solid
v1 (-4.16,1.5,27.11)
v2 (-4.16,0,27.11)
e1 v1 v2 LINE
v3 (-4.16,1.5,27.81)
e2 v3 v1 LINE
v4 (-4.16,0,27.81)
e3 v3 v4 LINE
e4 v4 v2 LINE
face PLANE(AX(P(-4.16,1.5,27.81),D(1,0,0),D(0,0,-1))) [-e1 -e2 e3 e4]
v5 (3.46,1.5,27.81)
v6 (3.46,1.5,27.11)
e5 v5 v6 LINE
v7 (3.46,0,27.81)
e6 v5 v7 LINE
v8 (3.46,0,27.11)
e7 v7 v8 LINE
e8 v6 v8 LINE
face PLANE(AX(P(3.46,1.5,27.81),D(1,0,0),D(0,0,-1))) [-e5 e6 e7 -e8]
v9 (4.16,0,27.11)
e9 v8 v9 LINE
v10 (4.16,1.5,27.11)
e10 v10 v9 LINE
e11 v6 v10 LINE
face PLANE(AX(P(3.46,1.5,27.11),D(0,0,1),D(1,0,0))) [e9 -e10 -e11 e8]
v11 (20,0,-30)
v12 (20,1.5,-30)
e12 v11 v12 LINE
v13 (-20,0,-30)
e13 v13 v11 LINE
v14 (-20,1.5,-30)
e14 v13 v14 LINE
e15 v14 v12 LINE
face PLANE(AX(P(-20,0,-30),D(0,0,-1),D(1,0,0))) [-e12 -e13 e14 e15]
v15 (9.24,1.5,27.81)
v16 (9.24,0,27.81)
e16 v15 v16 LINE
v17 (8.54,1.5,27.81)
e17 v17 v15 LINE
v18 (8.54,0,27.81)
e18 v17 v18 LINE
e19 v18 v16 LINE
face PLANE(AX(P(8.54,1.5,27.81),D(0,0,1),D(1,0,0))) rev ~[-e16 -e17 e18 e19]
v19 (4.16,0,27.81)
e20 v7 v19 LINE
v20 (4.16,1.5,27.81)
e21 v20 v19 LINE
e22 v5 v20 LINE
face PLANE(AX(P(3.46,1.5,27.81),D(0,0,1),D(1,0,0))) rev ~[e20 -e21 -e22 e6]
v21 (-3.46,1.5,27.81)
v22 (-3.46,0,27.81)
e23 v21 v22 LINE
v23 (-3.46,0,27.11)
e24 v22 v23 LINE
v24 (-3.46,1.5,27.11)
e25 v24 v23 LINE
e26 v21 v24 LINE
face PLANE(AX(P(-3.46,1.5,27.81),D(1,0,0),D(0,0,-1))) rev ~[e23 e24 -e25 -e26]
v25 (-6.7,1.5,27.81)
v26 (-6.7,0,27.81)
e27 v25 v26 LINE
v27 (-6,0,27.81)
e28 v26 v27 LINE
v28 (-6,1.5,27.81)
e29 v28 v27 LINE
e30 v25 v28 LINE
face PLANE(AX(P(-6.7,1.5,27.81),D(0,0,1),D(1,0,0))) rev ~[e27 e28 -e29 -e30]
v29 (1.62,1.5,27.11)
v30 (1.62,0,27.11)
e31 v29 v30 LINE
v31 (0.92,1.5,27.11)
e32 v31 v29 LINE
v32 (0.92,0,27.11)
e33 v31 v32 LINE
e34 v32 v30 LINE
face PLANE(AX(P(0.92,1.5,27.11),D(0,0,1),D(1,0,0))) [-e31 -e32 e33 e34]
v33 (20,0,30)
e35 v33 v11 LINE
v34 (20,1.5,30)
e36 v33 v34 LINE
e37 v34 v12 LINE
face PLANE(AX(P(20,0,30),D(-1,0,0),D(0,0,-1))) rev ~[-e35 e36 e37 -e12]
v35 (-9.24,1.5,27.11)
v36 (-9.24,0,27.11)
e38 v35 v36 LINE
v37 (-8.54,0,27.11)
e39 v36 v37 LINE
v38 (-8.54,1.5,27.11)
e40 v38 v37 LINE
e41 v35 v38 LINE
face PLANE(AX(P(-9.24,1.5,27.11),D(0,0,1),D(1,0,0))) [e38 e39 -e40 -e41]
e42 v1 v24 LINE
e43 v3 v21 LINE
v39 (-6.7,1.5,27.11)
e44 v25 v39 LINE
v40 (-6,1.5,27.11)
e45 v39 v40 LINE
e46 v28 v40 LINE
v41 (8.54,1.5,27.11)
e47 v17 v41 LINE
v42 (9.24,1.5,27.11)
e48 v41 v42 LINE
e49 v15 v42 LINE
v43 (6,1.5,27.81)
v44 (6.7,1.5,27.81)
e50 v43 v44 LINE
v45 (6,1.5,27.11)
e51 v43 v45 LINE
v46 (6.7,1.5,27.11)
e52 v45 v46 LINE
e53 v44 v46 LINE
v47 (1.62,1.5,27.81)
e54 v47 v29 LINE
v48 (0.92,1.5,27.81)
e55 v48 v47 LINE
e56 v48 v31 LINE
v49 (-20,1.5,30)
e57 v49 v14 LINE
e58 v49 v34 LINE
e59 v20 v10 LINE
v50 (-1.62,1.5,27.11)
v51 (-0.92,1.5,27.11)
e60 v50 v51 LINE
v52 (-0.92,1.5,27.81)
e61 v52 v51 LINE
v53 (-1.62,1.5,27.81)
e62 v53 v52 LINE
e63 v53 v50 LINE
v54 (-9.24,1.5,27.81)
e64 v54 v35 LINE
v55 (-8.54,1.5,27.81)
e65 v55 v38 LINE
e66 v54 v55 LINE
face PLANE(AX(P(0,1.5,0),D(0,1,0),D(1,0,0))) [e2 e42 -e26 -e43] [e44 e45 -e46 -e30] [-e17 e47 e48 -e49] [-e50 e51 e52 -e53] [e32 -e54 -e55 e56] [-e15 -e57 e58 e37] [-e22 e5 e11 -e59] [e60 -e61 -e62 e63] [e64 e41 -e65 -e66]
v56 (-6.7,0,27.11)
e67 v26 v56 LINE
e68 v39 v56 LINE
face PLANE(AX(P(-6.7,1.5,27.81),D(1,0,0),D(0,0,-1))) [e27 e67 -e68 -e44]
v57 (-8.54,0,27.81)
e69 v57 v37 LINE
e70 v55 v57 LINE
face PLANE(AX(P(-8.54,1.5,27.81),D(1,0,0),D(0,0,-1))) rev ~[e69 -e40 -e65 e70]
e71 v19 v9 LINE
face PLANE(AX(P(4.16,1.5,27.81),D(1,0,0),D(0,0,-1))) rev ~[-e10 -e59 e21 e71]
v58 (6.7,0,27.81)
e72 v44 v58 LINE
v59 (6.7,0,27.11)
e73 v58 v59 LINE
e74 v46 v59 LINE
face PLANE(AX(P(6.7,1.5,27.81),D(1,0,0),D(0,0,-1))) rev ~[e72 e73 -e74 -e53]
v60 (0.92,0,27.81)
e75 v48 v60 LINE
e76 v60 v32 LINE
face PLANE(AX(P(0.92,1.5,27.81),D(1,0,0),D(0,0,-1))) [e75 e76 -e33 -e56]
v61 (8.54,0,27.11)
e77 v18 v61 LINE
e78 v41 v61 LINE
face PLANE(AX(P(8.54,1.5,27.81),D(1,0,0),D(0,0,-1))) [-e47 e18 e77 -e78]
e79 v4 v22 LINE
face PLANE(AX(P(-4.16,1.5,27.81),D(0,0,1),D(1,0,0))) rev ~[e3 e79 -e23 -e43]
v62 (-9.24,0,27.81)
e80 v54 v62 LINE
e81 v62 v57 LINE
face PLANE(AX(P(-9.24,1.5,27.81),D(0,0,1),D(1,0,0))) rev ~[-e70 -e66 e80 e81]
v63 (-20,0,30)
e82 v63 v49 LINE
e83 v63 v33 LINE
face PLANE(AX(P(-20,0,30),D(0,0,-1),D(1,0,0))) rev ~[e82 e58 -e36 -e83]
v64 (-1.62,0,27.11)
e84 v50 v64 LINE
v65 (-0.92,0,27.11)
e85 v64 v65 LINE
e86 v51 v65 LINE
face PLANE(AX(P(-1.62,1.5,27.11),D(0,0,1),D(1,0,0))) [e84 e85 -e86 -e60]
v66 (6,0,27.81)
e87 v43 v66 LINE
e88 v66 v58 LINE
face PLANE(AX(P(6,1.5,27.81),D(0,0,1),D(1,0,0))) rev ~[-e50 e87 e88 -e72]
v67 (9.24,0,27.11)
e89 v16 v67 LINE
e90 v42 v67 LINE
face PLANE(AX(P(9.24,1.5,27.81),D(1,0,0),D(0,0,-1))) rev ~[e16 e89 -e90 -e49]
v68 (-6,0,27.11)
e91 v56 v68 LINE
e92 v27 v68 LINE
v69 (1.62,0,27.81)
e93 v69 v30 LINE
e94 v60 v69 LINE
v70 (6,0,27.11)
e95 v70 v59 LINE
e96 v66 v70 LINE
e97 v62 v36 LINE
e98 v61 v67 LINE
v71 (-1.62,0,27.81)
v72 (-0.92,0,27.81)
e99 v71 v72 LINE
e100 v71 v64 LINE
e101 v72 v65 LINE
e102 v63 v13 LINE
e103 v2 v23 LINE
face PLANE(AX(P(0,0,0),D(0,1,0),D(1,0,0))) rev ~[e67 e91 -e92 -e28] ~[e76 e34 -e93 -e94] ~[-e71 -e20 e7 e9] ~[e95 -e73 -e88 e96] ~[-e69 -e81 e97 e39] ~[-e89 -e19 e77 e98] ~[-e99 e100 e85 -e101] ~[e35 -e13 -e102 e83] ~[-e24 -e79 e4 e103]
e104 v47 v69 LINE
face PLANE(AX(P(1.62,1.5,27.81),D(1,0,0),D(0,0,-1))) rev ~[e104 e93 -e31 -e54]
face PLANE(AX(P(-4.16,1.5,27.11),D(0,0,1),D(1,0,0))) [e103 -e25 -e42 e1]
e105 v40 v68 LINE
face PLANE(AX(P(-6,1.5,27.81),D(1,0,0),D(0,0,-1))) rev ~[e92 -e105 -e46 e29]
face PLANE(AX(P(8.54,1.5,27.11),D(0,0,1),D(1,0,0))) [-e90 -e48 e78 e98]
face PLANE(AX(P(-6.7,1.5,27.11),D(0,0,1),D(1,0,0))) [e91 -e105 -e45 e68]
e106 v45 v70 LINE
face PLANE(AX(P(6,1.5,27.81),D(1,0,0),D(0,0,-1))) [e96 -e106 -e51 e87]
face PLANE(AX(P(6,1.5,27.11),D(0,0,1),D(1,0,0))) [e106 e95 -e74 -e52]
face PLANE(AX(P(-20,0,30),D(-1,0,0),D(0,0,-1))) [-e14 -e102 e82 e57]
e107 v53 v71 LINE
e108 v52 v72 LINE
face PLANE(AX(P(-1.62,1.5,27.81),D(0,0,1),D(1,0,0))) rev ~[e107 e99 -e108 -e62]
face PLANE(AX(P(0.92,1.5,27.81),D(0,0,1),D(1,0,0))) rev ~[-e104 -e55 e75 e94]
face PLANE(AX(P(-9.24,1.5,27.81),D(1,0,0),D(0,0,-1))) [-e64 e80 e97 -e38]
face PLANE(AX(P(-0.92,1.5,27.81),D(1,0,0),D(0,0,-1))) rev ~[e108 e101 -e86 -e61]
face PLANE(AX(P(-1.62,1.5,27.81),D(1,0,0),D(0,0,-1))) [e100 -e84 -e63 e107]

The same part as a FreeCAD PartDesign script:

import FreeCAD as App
import Part
import Sketcher

V = App.Vector
Q = App.Units.Quantity


def add_polygon(sketch, points):
    """Adds a closed chain of lines whose ends are joined by coincident constraints."""
    first, n = sketch.GeometryCount, len(points)
    for a, b in zip(points, points[1:] + points[:1]):
        sketch.addGeometry(Part.LineSegment(App.Vector(*a, 0), App.Vector(*b, 0)), False)
    for i in range(n):
        sketch.addConstraint(Sketcher.Constraint("Coincident", first + i, 2, first + (i + 1) % n, 1))

doc = App.newDocument("Part")
body = doc.addObject("PartDesign::Body", "Body")

sketch1 = body.newObject("Sketcher::SketchObject", "Sketch")
sketch1.AttachmentSupport = (doc.getObject("XZ_Plane"), [""])
sketch1.MapMode = "FlatFace"
add_polygon(sketch1, [(-20, -30), (-20, 30), (20, 30), (20, -30)])
sketch1.addConstraint(Sketcher.Constraint("Vertical", 0))
sketch1.addConstraint(Sketcher.Constraint("Horizontal", 1))
sketch1.addConstraint(Sketcher.Constraint("Vertical", 2))
sketch1.addConstraint(Sketcher.Constraint("Horizontal", 3))
sketch1.addConstraint(Sketcher.Constraint("Symmetric", 0, 2, 2, 2, -1, 1))
sketch1.addConstraint(Sketcher.Constraint("DistanceX", 1, 1, 1, 2, Q("40 mm")))
sketch1.addConstraint(Sketcher.Constraint("DistanceY", 0, 1, 0, 2, Q("60 mm")))
pad1 = body.newObject("PartDesign::Pad", "Pad")
pad1.Profile = sketch1
pad1.Length = 1.5
pad1.Reversed = True

sketch2 = body.newObject("Sketcher::SketchObject", "Sketch001")
sketch2.AttachmentSupport = (doc.getObject("XZ_Plane"), [""])
sketch2.MapMode = "FlatFace"
sketch2.AttachmentOffset = App.Placement(V(0, 0, -1.5), App.Rotation())
add_polygon(sketch2, [(-4.16, 27.11), (-4.16, 27.81), (-3.46, 27.81), (-3.46, 27.11)])
add_polygon(sketch2, [(-1.62, 27.11), (-1.62, 27.81), (-0.92, 27.81), (-0.92, 27.11)])
add_polygon(sketch2, [(-6.7, 27.11), (-6.7, 27.81), (-6, 27.81), (-6, 27.11)])
add_polygon(sketch2, [(-9.24, 27.11), (-9.24, 27.81), (-8.54, 27.81), (-8.54, 27.11)])
add_polygon(sketch2, [(8.54, 27.11), (8.54, 27.81), (9.24, 27.81), (9.24, 27.11)])
add_polygon(sketch2, [(6, 27.11), (6, 27.81), (6.7, 27.81), (6.7, 27.11)])
add_polygon(sketch2, [(3.46, 27.11), (3.46, 27.81), (4.16, 27.81), (4.16, 27.11)])
add_polygon(sketch2, [(0.92, 27.11), (0.92, 27.81), (1.62, 27.81), (1.62, 27.11)])
sketch2.addConstraint(Sketcher.Constraint("Vertical", 0))
sketch2.addConstraint(Sketcher.Constraint("Horizontal", 1))
sketch2.addConstraint(Sketcher.Constraint("Vertical", 2))
sketch2.addConstraint(Sketcher.Constraint("Horizontal", 3))
sketch2.addConstraint(Sketcher.Constraint("Vertical", 4))
sketch2.addConstraint(Sketcher.Constraint("Horizontal", 5))
sketch2.addConstraint(Sketcher.Constraint("Vertical", 6))
sketch2.addConstraint(Sketcher.Constraint("Horizontal", 7))
sketch2.addConstraint(Sketcher.Constraint("Vertical", 8))
sketch2.addConstraint(Sketcher.Constraint("Horizontal", 9))
sketch2.addConstraint(Sketcher.Constraint("Vertical", 10))
sketch2.addConstraint(Sketcher.Constraint("Horizontal", 11))
sketch2.addConstraint(Sketcher.Constraint("Vertical", 12))
sketch2.addConstraint(Sketcher.Constraint("Horizontal", 13))
sketch2.addConstraint(Sketcher.Constraint("Vertical", 14))
sketch2.addConstraint(Sketcher.Constraint("Horizontal", 15))
sketch2.addConstraint(Sketcher.Constraint("Vertical", 16))
sketch2.addConstraint(Sketcher.Constraint("Horizontal", 17))
sketch2.addConstraint(Sketcher.Constraint("Vertical", 18))
sketch2.addConstraint(Sketcher.Constraint("Horizontal", 19))
sketch2.addConstraint(Sketcher.Constraint("Vertical", 20))
sketch2.addConstraint(Sketcher.Constraint("Horizontal", 21))
sketch2.addConstraint(Sketcher.Constraint("Vertical", 22))
sketch2.addConstraint(Sketcher.Constraint("Horizontal", 23))
sketch2.addConstraint(Sketcher.Constraint("Vertical", 24))
sketch2.addConstraint(Sketcher.Constraint("Horizontal", 25))
sketch2.addConstraint(Sketcher.Constraint("Vertical", 26))
sketch2.addConstraint(Sketcher.Constraint("Horizontal", 27))
sketch2.addConstraint(Sketcher.Constraint("Vertical", 28))
sketch2.addConstraint(Sketcher.Constraint("Horizontal", 29))
sketch2.addConstraint(Sketcher.Constraint("Vertical", 30))
sketch2.addConstraint(Sketcher.Constraint("Horizontal", 31))
sketch2.addConstraint(Sketcher.Constraint("Symmetric", 13, 2, 16, 2, -2))
sketch2.addConstraint(Sketcher.Constraint("Symmetric", 15, 2, 18, 2, -2))
sketch2.addConstraint(Sketcher.Constraint("Symmetric", 9, 2, 20, 2, -2))
sketch2.addConstraint(Sketcher.Constraint("Symmetric", 11, 2, 22, 2, -2))
sketch2.addConstraint(Sketcher.Constraint("Symmetric", 1, 2, 24, 2, -2))
sketch2.addConstraint(Sketcher.Constraint("Symmetric", 3, 2, 26, 2, -2))
sketch2.addConstraint(Sketcher.Constraint("Symmetric", 5, 2, 28, 2, -2))
sketch2.addConstraint(Sketcher.Constraint("Symmetric", 7, 2, 30, 2, -2))
sketch2.addConstraint(Sketcher.Constraint("Horizontal", 1, 2, 4, 2))
sketch2.addConstraint(Sketcher.Constraint("Horizontal", 3, 2, 6, 2))
sketch2.addConstraint(Sketcher.Constraint("Horizontal", 5, 2, 8, 2))
sketch2.addConstraint(Sketcher.Constraint("Horizontal", 7, 2, 10, 2))
sketch2.addConstraint(Sketcher.Constraint("Horizontal", 9, 2, 12, 2))
sketch2.addConstraint(Sketcher.Constraint("Horizontal", 11, 2, 14, 2))
sketch2.addConstraint(Sketcher.Constraint("Equal", 3, 5))
sketch2.addConstraint(Sketcher.Constraint("Equal", 7, 9))
sketch2.addConstraint(Sketcher.Constraint("Equal", 11, 13))
sketch2.addConstraint(Sketcher.Constraint("Equal", 31, 0))
sketch2.addConstraint(Sketcher.Constraint("DistanceX", 1, 1, 1, 2, Q("0.7 mm")))
sketch2.addConstraint(Sketcher.Constraint("DistanceX", 9, 2, -1, 1, Q("6 mm")))
sketch2.addConstraint(Sketcher.Constraint("DistanceX", 1, 2, 16, 2, Q("12 mm")))
sketch2.addConstraint(Sketcher.Constraint("DistanceX", 0, 2, -1, 1, Q("4.16 mm")))
sketch2.addConstraint(Sketcher.Constraint("DistanceY", -1, 1, 0, 2, Q("27.81 mm")))
sketch2.addConstraint(Sketcher.Constraint("DistanceX", 4, 2, -1, 1, Q("1.62 mm")))
pocket1 = body.newObject("PartDesign::Pocket", "Pocket")
pocket1.Profile = sketch2
pocket1.Type = "ThroughAll"
pocket1.Reversed = True

doc.recompute()
